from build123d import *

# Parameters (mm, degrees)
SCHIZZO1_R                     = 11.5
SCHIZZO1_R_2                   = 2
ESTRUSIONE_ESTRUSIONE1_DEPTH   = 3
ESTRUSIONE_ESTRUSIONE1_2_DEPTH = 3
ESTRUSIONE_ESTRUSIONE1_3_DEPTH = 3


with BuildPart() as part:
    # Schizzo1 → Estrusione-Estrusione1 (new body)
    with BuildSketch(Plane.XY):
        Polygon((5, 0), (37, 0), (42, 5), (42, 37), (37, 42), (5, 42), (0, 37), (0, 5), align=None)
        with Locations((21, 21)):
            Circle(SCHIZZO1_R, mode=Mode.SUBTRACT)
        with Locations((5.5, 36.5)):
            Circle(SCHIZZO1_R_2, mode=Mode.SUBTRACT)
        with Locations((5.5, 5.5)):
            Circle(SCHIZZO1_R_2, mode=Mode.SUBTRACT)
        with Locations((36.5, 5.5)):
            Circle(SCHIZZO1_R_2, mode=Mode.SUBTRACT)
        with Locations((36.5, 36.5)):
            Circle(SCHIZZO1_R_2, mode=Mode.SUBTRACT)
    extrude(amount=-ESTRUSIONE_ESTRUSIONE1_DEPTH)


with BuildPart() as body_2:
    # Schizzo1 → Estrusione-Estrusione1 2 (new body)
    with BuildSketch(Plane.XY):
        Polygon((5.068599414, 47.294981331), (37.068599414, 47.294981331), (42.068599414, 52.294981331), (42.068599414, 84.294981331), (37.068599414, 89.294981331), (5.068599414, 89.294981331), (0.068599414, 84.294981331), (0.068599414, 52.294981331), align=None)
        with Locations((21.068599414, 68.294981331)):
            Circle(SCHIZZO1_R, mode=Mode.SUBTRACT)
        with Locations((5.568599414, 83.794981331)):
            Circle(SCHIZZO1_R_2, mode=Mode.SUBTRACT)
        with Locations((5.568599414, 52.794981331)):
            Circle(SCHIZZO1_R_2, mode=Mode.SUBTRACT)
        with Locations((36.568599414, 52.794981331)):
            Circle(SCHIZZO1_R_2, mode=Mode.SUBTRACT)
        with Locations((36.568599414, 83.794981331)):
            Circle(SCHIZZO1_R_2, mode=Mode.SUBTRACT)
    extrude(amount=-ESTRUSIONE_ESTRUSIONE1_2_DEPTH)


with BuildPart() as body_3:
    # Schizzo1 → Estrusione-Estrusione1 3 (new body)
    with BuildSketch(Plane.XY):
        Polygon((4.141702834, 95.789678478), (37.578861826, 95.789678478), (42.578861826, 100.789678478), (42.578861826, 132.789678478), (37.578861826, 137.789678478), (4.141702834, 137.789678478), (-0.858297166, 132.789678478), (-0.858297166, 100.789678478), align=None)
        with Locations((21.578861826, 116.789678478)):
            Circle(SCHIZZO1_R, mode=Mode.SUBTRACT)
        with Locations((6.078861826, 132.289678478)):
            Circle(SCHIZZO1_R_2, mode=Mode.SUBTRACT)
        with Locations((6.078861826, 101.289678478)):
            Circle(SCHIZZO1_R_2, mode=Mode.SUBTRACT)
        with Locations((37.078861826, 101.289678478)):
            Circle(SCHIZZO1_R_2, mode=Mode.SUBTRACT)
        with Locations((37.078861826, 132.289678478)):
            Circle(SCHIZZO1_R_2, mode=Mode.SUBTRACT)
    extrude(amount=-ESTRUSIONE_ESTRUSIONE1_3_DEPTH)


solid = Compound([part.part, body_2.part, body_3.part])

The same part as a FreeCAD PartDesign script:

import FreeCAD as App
import Part
import Sketcher
Q = App.Units.Quantity

doc = App.newDocument("Part")
body = doc.addObject("PartDesign::Body", "Body")

# Sketch on XY plane
sketch1 = body.newObject("Sketcher::SketchObject", "Sketch")
sketch1.AttachmentSupport = (doc.getObject("XY_Plane"), [""])
sketch1.MapMode = "FlatFace"
sketch1.addGeometry([
    Part.LineSegment(App.Vector(5, 0, 0), App.Vector(37, 0, 0)),  # 0
    Part.LineSegment(App.Vector(37, 0, 0), App.Vector(42, 5, 0)),  # 1
    Part.LineSegment(App.Vector(42, 5, 0), App.Vector(42, 37, 0)),  # 2
    Part.LineSegment(App.Vector(42, 37, 0), App.Vector(37, 42, 0)),  # 3
    Part.LineSegment(App.Vector(37, 42, 0), App.Vector(5, 42, 0)),  # 4
    Part.LineSegment(App.Vector(5, 42, 0), App.Vector(0, 37, 0)),  # 5
    Part.LineSegment(App.Vector(0, 37, 0), App.Vector(0, 5, 0)),  # 6
    Part.LineSegment(App.Vector(0, 5, 0), App.Vector(5, 0, 0)),  # 7
    Part.Circle(App.Vector(5.5, 5.5, 0), App.Vector(0, 0, 1), 2),  # 8
    Part.Circle(App.Vector(36.5, 5.5, 0), App.Vector(0, 0, 1), 2),  # 9
    Part.Circle(App.Vector(5.5, 36.5, 0), App.Vector(0, 0, 1), 2),  # 10
    Part.Circle(App.Vector(21, 21, 0), App.Vector(0, 0, 1), 11.5),  # 11
    Part.Circle(App.Vector(36.5, 36.5, 0), App.Vector(0, 0, 1), 2),  # 12
], False)
sketch1.addConstraint([
    Sketcher.Constraint("Coincident", 0, 2, 1, 1),
    Sketcher.Constraint("Coincident", 1, 2, 2, 1),
    Sketcher.Constraint("Coincident", 2, 2, 3, 1),
    Sketcher.Constraint("Coincident", 3, 2, 4, 1),
    Sketcher.Constraint("Coincident", 4, 2, 5, 1),
    Sketcher.Constraint("Coincident", 5, 2, 6, 1),
    Sketcher.Constraint("Coincident", 6, 2, 7, 1),
    Sketcher.Constraint("Coincident", 7, 2, 0, 1),
    Sketcher.Constraint("Horizontal", 0),
    Sketcher.Constraint("Vertical", 2),
    Sketcher.Constraint("Horizontal", 4),
    Sketcher.Constraint("Vertical", 6),
    Sketcher.Constraint("Equal", 8, 9),
    Sketcher.Constraint("Equal", 9, 10),
    Sketcher.Constraint("Equal", 10, 12),
    Sketcher.Constraint("PointOnObject", 0, 2, -1),
    Sketcher.Constraint("PointOnObject", 5, 2, -2),
    Sketcher.Constraint("Perpendicular", 1, 3),
    Sketcher.Constraint("Perpendicular", 3, 5),
    Sketcher.Constraint("Perpendicular", 5, 7),
    Sketcher.Constraint("Horizontal", 8, 3, 9, 3),
    Sketcher.Constraint("Horizontal", 10, 3, 12, 3),
    Sketcher.Constraint("Horizontal", 2, 2, 5, 2),
    Sketcher.Constraint("Horizontal", 1, 2, 6, 2),
    Sketcher.Constraint("Vertical", 8, 3, 10, 3),
    Sketcher.Constraint("Vertical", 9, 3, 12, 3),
    Sketcher.Constraint("Vertical", 0, 2, 3, 2),
    Sketcher.Constraint("Vertical", 4, 2, 7, 2),
    Sketcher.Constraint("Equal", 4, 2),
    Sketcher.Constraint("Diameter", 8, Q("4 mm")),
    Sketcher.Constraint("Diameter", 11, Q("23 mm")),
    Sketcher.Constraint("DistanceX", 0, 1, 0, 2, Q("32 mm")),
    Sketcher.Constraint("DistanceX", -1, 1, 11, 3, Q("21 mm")),
    Sketcher.Constraint("DistanceY", -1, 1, 11, 3, Q("21 mm")),
    Sketcher.Constraint("DistanceX", -1, 1, 0, 2, Q("37 mm")),
    Sketcher.Constraint("DistanceX", 8, 3, 9, 3, Q("31 mm")),
    Sketcher.Constraint("DistanceY", 8, 3, 10, 3, Q("31 mm")),
    Sketcher.Constraint("DistanceX", -1, 1, 8, 3, Q("5.5 mm")),
    Sketcher.Constraint("DistanceY", -1, 1, 8, 3, Q("5.5 mm")),
])
pad1 = body.newObject("PartDesign::Pad", "Pad")
pad1.Profile = sketch1
pad1.Length = 3
pad1.Reversed = True
body2 = doc.addObject("PartDesign::Body", "Body001")

# Sketch on XY plane
sketch2 = body2.newObject("Sketcher::SketchObject", "Sketch001")
sketch2.AttachmentSupport = (doc.getObject("XY_Plane001"), [""])
sketch2.MapMode = "FlatFace"
sketch2.addGeometry([
    Part.LineSegment(App.Vector(5.1, 47.3, 0), App.Vector(37.1, 47.3, 0)),  # 0
    Part.LineSegment(App.Vector(37.1, 47.3, 0), App.Vector(42.1, 52.3, 0)),  # 1
    Part.LineSegment(App.Vector(42.1, 52.3, 0), App.Vector(42.1, 84.3, 0)),  # 2
    Part.LineSegment(App.Vector(42.1, 84.3, 0), App.Vector(37.1, 89.3, 0)),  # 3
    Part.LineSegment(App.Vector(37.1, 89.3, 0), App.Vector(5.1, 89.3, 0)),  # 4
    Part.LineSegment(App.Vector(5.1, 89.3, 0), App.Vector(0.1, 84.3, 0)),  # 5
    Part.LineSegment(App.Vector(0.1, 84.3, 0), App.Vector(0.1, 52.3, 0)),  # 6
    Part.LineSegment(App.Vector(0.1, 52.3, 0), App.Vector(5.1, 47.3, 0)),  # 7
    Part.Circle(App.Vector(5.6, 52.8, 0), App.Vector(0, 0, 1), 2),  # 8
    Part.Circle(App.Vector(36.6, 52.8, 0), App.Vector(0, 0, 1), 2),  # 9
    Part.Circle(App.Vector(5.6, 83.8, 0), App.Vector(0, 0, 1), 2),  # 10
    Part.Circle(App.Vector(21.1, 68.3, 0), App.Vector(0, 0, 1), 11.5),  # 11
    Part.Circle(App.Vector(36.6, 83.8, 0), App.Vector(0, 0, 1), 2),  # 12
], False)
sketch2.addConstraint([
    Sketcher.Constraint("Coincident", 0, 2, 1, 1),
    Sketcher.Constraint("Coincident", 1, 2, 2, 1),
    Sketcher.Constraint("Coincident", 2, 2, 3, 1),
    Sketcher.Constraint("Coincident", 3, 2, 4, 1),
    Sketcher.Constraint("Coincident", 4, 2, 5, 1),
    Sketcher.Constraint("Coincident", 5, 2, 6, 1),
    Sketcher.Constraint("Coincident", 6, 2, 7, 1),
    Sketcher.Constraint("Coincident", 7, 2, 0, 1),
    Sketcher.Constraint("Horizontal", 0),
    Sketcher.Constraint("Vertical", 2),
    Sketcher.Constraint("Horizontal", 4),
    Sketcher.Constraint("Vertical", 6),
    Sketcher.Constraint("Equal", 8, 9),
    Sketcher.Constraint("Equal", 9, 10),
    Sketcher.Constraint("Equal", 10, 12),
    Sketcher.Constraint("Perpendicular", 1, 3),
    Sketcher.Constraint("Perpendicular", 3, 5),
    Sketcher.Constraint("Perpendicular", 5, 7),
    Sketcher.Constraint("Horizontal", 8, 3, 9, 3),
    Sketcher.Constraint("Horizontal", 10, 3, 12, 3),
    Sketcher.Constraint("Horizontal", 2, 2, 5, 2),
    Sketcher.Constraint("Horizontal", 1, 2, 6, 2),
    Sketcher.Constraint("Vertical", 8, 3, 10, 3),
    Sketcher.Constraint("Vertical", 9, 3, 12, 3),
    Sketcher.Constraint("Vertical", 0, 2, 3, 2),
    Sketcher.Constraint("Vertical", 4, 2, 7, 2),
    Sketcher.Constraint("Equal", 4, 2),
    Sketcher.Constraint("Diameter", 8, Q("4 mm")),
    Sketcher.Constraint("Diameter", 11, Q("23 mm")),
    Sketcher.Constraint("DistanceX", 0, 1, 0, 2, Q("32 mm")),
    Sketcher.Constraint("DistanceX", 8, 3, 9, 3, Q("31 mm")),
    Sketcher.Constraint("DistanceY", 8, 3, 10, 3, Q("31 mm")),
    Sketcher.Constraint("DistanceX", 11, 3, 0, 2, Q("16 mm")),
    Sketcher.Constraint("DistanceY", 0, 2, 11, 3, Q("21 mm")),
    Sketcher.Constraint("DistanceX", 0, 2, 1, 2, Q("5 mm")),
    Sketcher.Constraint("DistanceX", 11, 3, 9, 3, Q("15.5 mm")),
    Sketcher.Constraint("DistanceY", 9, 3, 11, 3, Q("15.5 mm")),
    Sketcher.Constraint("DistanceX", -1, 1, 8, 3, Q("5.568599 mm")),
    Sketcher.Constraint("DistanceY", -1, 1, 8, 3, Q("52.794981 mm")),
])
pad2 = body2.newObject("PartDesign::Pad", "Pad001")
pad2.Profile = sketch2
pad2.Length = 3
pad2.Reversed = True
body3 = doc.addObject("PartDesign::Body", "Body002")

# Sketch on XY plane
sketch3 = body3.newObject("Sketcher::SketchObject", "Sketch002")
sketch3.AttachmentSupport = (doc.getObject("XY_Plane002"), [""])
sketch3.MapMode = "FlatFace"
sketch3.addGeometry([
    Part.LineSegment(App.Vector(4.1, 95.8, 0), App.Vector(37.6, 95.8, 0)),  # 0
    Part.LineSegment(App.Vector(37.6, 95.8, 0), App.Vector(42.6, 100.8, 0)),  # 1
    Part.LineSegment(App.Vector(42.6, 100.8, 0), App.Vector(42.6, 132.8, 0)),  # 2
    Part.LineSegment(App.Vector(42.6, 132.8, 0), App.Vector(37.6, 137.8, 0)),  # 3
    Part.LineSegment(App.Vector(37.6, 137.8, 0), App.Vector(4.1, 137.8, 0)),  # 4
    Part.LineSegment(App.Vector(4.1, 137.8, 0), App.Vector(-0.9, 132.8, 0)),  # 5
    Part.LineSegment(App.Vector(-0.9, 132.8, 0), App.Vector(-0.9, 100.8, 0)),  # 6
    Part.LineSegment(App.Vector(-0.9, 100.8, 0), App.Vector(4.1, 95.8, 0)),  # 7
    Part.Circle(App.Vector(6.1, 101.3, 0), App.Vector(0, 0, 1), 2),  # 8
    Part.Circle(App.Vector(37.1, 101.3, 0), App.Vector(0, 0, 1), 2),  # 9
    Part.Circle(App.Vector(21.6, 116.8, 0), App.Vector(0, 0, 1), 11.5),  # 10
    Part.Circle(App.Vector(6.1, 132.3, 0), App.Vector(0, 0, 1), 2),  # 11
    Part.Circle(App.Vector(37.1, 132.3, 0), App.Vector(0, 0, 1), 2),  # 12
], False)
sketch3.addConstraint([
    Sketcher.Constraint("Coincident", 0, 2, 1, 1),
    Sketcher.Constraint("Coincident", 1, 2, 2, 1),
    Sketcher.Constraint("Coincident", 2, 2, 3, 1),
    Sketcher.Constraint("Coincident", 3, 2, 4, 1),
    Sketcher.Constraint("Coincident", 4, 2, 5, 1),
    Sketcher.Constraint("Coincident", 5, 2, 6, 1),
    Sketcher.Constraint("Coincident", 6, 2, 7, 1),
    Sketcher.Constraint("Coincident", 7, 2, 0, 1),
    Sketcher.Constraint("Horizontal", 0),
    Sketcher.Constraint("Vertical", 2),
    Sketcher.Constraint("Horizontal", 4),
    Sketcher.Constraint("Vertical", 6),
    Sketcher.Constraint("Equal", 8, 9),
    Sketcher.Constraint("Equal", 9, 11),
    Sketcher.Constraint("Equal", 11, 12),
    Sketcher.Constraint("Perpendicular", 1, 3),
    Sketcher.Constraint("Perpendicular", 3, 5),
    Sketcher.Constraint("Perpendicular", 5, 7),
    Sketcher.Constraint("Horizontal", 8, 3, 9, 3),
    Sketcher.Constraint("Horizontal", 11, 3, 12, 3),
    Sketcher.Constraint("Horizontal", 2, 2, 5, 2),
    Sketcher.Constraint("Horizontal", 1, 2, 6, 2),
    Sketcher.Constraint("Vertical", 8, 3, 11, 3),
    Sketcher.Constraint("Vertical", 9, 3, 12, 3),
    Sketcher.Constraint("Vertical", 0, 2, 3, 2),
    Sketcher.Constraint("Vertical", 4, 2, 7, 2),
    Sketcher.Constraint("Diameter", 8, Q("4 mm")),
    Sketcher.Constraint("Diameter", 10, Q("23 mm")),
    Sketcher.Constraint("DistanceY", 2, 1, 2, 2, Q("32 mm")),
    Sketcher.Constraint("DistanceX", 8, 3, 9, 3, Q("31 mm")),
    Sketcher.Constraint("DistanceY", 8, 3, 11, 3, Q("31 mm")),
    Sketcher.Constraint("DistanceX", 10, 3, 0, 2, Q("16 mm")),
    Sketcher.Constraint("DistanceY", 0, 2, 10, 3, Q("21 mm")),
    Sketcher.Constraint("DistanceX", 0, 2, 1, 2, Q("5 mm")),
    Sketcher.Constraint("DistanceX", 8, 3, 10, 3, Q("15.5 mm")),
    Sketcher.Constraint("DistanceY", 8, 3, 10, 3, Q("15.5 mm")),
    Sketcher.Constraint("DistanceX", 0, 1, 0, 2, Q("33.437159 mm")),
    Sketcher.Constraint("DistanceX", -1, 1, 8, 3, Q("6.078862 mm")),
    Sketcher.Constraint("DistanceY", -1, 1, 8, 3, Q("101.289678 mm")),
])
pad3 = body3.newObject("PartDesign::Pad", "Pad002")
pad3.Profile = sketch3
pad3.Length = 3
pad3.Reversed = True

doc.recompute()
